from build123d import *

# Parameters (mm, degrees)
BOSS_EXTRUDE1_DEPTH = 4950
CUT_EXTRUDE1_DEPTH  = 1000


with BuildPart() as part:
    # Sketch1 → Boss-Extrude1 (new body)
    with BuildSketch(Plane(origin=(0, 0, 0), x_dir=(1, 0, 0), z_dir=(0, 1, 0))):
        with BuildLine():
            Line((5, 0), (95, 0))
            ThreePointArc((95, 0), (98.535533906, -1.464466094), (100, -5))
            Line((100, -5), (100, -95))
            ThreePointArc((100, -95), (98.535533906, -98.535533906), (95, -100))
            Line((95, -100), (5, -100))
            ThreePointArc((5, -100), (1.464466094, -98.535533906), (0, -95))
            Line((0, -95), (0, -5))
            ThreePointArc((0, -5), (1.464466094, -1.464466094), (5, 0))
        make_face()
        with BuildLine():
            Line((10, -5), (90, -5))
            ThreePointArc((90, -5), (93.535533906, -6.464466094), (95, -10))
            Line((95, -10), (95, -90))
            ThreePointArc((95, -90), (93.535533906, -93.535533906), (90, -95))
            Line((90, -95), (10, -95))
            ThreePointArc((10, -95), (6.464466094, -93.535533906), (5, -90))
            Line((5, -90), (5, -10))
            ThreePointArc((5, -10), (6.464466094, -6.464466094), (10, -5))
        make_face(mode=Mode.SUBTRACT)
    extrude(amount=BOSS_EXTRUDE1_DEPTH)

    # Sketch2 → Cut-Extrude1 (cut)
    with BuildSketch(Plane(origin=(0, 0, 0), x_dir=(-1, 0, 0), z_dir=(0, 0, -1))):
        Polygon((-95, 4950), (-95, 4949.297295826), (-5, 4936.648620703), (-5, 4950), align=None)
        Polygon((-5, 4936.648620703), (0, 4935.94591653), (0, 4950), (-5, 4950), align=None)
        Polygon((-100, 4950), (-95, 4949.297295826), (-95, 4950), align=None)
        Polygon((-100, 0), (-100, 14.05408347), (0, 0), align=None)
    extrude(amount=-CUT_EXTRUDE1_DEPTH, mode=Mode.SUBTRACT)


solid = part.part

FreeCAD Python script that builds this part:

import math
import FreeCAD as App
import Part
import Sketcher

V = App.Vector
Q = App.Units.Quantity


def add_polygon(sketch, points):
    """Adds a closed chain of lines whose ends are joined by coincident constraints."""
    first, n = sketch.GeometryCount, len(points)
    for a, b in zip(points, points[1:] + points[:1]):
        sketch.addGeometry(Part.LineSegment(App.Vector(*a, 0), App.Vector(*b, 0)), False)
    for i in range(n):
        sketch.addConstraint(Sketcher.Constraint("Coincident", first + i, 2, first + (i + 1) % n, 1))

doc = App.newDocument("Part")
body = doc.addObject("PartDesign::Body", "Body")

sketch1 = body.newObject("Sketcher::SketchObject", "Sketch")
sketch1.AttachmentSupport = (doc.getObject("XZ_Plane"), [""])
sketch1.MapMode = "FlatFace"
sketch1.addGeometry(Part.LineSegment(V(95, 0, 0), V(5, 0, 0)), False)
sketch1.addGeometry(Part.ArcOfCircle(Part.Circle(V(5, 5, 0), V(0, 0, 1), 5), math.radians(180), math.radians(270)), False)
sketch1.addGeometry(Part.LineSegment(V(0, 5, 0), V(0, 95, 0)), False)
sketch1.addGeometry(Part.ArcOfCircle(Part.Circle(V(5, 95, 0), V(0, 0, 1), 5), math.radians(90), math.radians(180)), False)
sketch1.addGeometry(Part.LineSegment(V(5, 100, 0), V(95, 100, 0)), False)
sketch1.addGeometry(Part.ArcOfCircle(Part.Circle(V(95, 95, 0), V(0, 0, 1), 5), math.radians(0), math.radians(90)), False)
sketch1.addGeometry(Part.LineSegment(V(100, 95, 0), V(100, 5, 0)), False)
sketch1.addGeometry(Part.ArcOfCircle(Part.Circle(V(95, 5, 0), V(0, 0, 1), 5), math.radians(-90), math.radians(0)), False)
sketch1.addGeometry(Part.LineSegment(V(10, 5, 0), V(90, 5, 0)), False)
sketch1.addGeometry(Part.ArcOfCircle(Part.Circle(V(90, 10, 0), V(0, 0, 1), 5), math.radians(-90), math.radians(0)), False)
sketch1.addGeometry(Part.LineSegment(V(95, 10, 0), V(95, 90, 0)), False)
sketch1.addGeometry(Part.ArcOfCircle(Part.Circle(V(90, 90, 0), V(0, 0, 1), 5), math.radians(0), math.radians(90)), False)
sketch1.addGeometry(Part.LineSegment(V(90, 95, 0), V(10, 95, 0)), False)
sketch1.addGeometry(Part.ArcOfCircle(Part.Circle(V(10, 90, 0), V(0, 0, 1), 5), math.radians(90), math.radians(180)), False)
sketch1.addGeometry(Part.LineSegment(V(5, 90, 0), V(5, 10, 0)), False)
sketch1.addGeometry(Part.ArcOfCircle(Part.Circle(V(10, 10, 0), V(0, 0, 1), 5), math.radians(180), math.radians(270)), False)
sketch1.addConstraint(Sketcher.Constraint("Tangent", 0, 2, 1, 2))
sketch1.addConstraint(Sketcher.Constraint("Tangent", 1, 1, 2, 1))
sketch1.addConstraint(Sketcher.Constraint("Tangent", 2, 2, 3, 2))
sketch1.addConstraint(Sketcher.Constraint("Tangent", 3, 1, 4, 1))
sketch1.addConstraint(Sketcher.Constraint("Tangent", 4, 2, 5, 2))
sketch1.addConstraint(Sketcher.Constraint("Tangent", 5, 1, 6, 1))
sketch1.addConstraint(Sketcher.Constraint("Tangent", 6, 2, 7, 2))
sketch1.addConstraint(Sketcher.Constraint("Tangent", 7, 1, 0, 1))
sketch1.addConstraint(Sketcher.Constraint("Tangent", 8, 2, 9, 1))
sketch1.addConstraint(Sketcher.Constraint("Tangent", 9, 2, 10, 1))
sketch1.addConstraint(Sketcher.Constraint("Tangent", 10, 2, 11, 1))
sketch1.addConstraint(Sketcher.Constraint("Tangent", 11, 2, 12, 1))
sketch1.addConstraint(Sketcher.Constraint("Tangent", 12, 2, 13, 1))
sketch1.addConstraint(Sketcher.Constraint("Tangent", 13, 2, 14, 1))
sketch1.addConstraint(Sketcher.Constraint("Tangent", 14, 2, 15, 1))
sketch1.addConstraint(Sketcher.Constraint("Tangent", 15, 2, 8, 1))
sketch1.addConstraint(Sketcher.Constraint("Horizontal", 0))
sketch1.addConstraint(Sketcher.Constraint("Vertical", 2))
sketch1.addConstraint(Sketcher.Constraint("Horizontal", 4))
sketch1.addConstraint(Sketcher.Constraint("Vertical", 6))
sketch1.addConstraint(Sketcher.Constraint("Horizontal", 8))
sketch1.addConstraint(Sketcher.Constraint("Vertical", 10))
sketch1.addConstraint(Sketcher.Constraint("Horizontal", 12))
sketch1.addConstraint(Sketcher.Constraint("Vertical", 14))
sketch1.addConstraint(Sketcher.Constraint("Equal", 1, 3))
sketch1.addConstraint(Sketcher.Constraint("Equal", 3, 5))
sketch1.addConstraint(Sketcher.Constraint("Equal", 5, 7))
sketch1.addConstraint(Sketcher.Constraint("Equal", 7, 9))
sketch1.addConstraint(Sketcher.Constraint("Equal", 9, 11))
sketch1.addConstraint(Sketcher.Constraint("Equal", 11, 13))
sketch1.addConstraint(Sketcher.Constraint("Equal", 13, 15))
sketch1.addConstraint(Sketcher.Constraint("PointOnObject", 0, 2, -1))
sketch1.addConstraint(Sketcher.Constraint("PointOnObject", 1, 1, -2))
sketch1.addConstraint(Sketcher.Constraint("Horizontal", 6, 2, 8, 2))
sketch1.addConstraint(Sketcher.Constraint("Horizontal", 5, 1, 11, 2))
sketch1.addConstraint(Sketcher.Constraint("Vertical", 7, 1, 9, 2))
sketch1.addConstraint(Sketcher.Constraint("Vertical", 3, 1, 13, 2))
sketch1.addConstraint(Sketcher.Constraint("Equal", 4, 2))
sketch1.addConstraint(Sketcher.Constraint("Radius", 1, Q("5 mm")))
sketch1.addConstraint(Sketcher.Constraint("DistanceX", 0, 2, 0, 1, Q("90 mm")))
pad1 = body.newObject("PartDesign::Pad", "Pad")
pad1.Profile = sketch1
pad1.Length = 4950
pad1.Reversed = True

sketch2 = body.newObject("Sketcher::SketchObject", "Sketch001")
sketch2.AttachmentSupport = (doc.getObject("XY_Plane"), [""])
sketch2.MapMode = "FlatFace"
add_polygon(sketch2, [(95, 4949.297296), (5, 4936.648621), (0, 4935.945917), (0, 4950), (100, 4950)])
add_polygon(sketch2, [(100, 14.054083), (100, 0), (0, 0)])
sketch2.addConstraint(Sketcher.Constraint("Vertical", 2))
sketch2.addConstraint(Sketcher.Constraint("Horizontal", 3))
sketch2.addConstraint(Sketcher.Constraint("Vertical", 5))
sketch2.addConstraint(Sketcher.Constraint("Horizontal", 6))
sketch2.addConstraint(Sketcher.Constraint("Coincident", 6, 2, -1, 1))
sketch2.addConstraint(Sketcher.Constraint("PointOnObject", 1, 2, -2))
sketch2.addConstraint(Sketcher.Constraint("Parallel", 0, 1))
sketch2.addConstraint(Sketcher.Constraint("Parallel", 1, 4))
sketch2.addConstraint(Sketcher.Constraint("Parallel", 4, 7))
sketch2.addConstraint(Sketcher.Constraint("Vertical", 3, 2, 5, 2))
sketch2.addConstraint(Sketcher.Constraint("Equal", 1, 4))
sketch2.addConstraint(Sketcher.Constraint("DistanceX", 3, 1, 3, 2, Q("100 mm")))
sketch2.addConstraint(Sketcher.Constraint("Angle", 0, Q("-172 deg")))
sketch2.addConstraint(Sketcher.Constraint("DistanceX", -1, 1, 0, 2, Q("5 mm")))
sketch2.addConstraint(Sketcher.Constraint("DistanceY", -1, 1, 2, 2, Q("4950 mm")))
pocket1 = body.newObject("PartDesign::Pocket", "Pocket")
pocket1.Profile = sketch2
pocket1.Length = 1000
pocket1.Reversed = True

doc.recompute()
